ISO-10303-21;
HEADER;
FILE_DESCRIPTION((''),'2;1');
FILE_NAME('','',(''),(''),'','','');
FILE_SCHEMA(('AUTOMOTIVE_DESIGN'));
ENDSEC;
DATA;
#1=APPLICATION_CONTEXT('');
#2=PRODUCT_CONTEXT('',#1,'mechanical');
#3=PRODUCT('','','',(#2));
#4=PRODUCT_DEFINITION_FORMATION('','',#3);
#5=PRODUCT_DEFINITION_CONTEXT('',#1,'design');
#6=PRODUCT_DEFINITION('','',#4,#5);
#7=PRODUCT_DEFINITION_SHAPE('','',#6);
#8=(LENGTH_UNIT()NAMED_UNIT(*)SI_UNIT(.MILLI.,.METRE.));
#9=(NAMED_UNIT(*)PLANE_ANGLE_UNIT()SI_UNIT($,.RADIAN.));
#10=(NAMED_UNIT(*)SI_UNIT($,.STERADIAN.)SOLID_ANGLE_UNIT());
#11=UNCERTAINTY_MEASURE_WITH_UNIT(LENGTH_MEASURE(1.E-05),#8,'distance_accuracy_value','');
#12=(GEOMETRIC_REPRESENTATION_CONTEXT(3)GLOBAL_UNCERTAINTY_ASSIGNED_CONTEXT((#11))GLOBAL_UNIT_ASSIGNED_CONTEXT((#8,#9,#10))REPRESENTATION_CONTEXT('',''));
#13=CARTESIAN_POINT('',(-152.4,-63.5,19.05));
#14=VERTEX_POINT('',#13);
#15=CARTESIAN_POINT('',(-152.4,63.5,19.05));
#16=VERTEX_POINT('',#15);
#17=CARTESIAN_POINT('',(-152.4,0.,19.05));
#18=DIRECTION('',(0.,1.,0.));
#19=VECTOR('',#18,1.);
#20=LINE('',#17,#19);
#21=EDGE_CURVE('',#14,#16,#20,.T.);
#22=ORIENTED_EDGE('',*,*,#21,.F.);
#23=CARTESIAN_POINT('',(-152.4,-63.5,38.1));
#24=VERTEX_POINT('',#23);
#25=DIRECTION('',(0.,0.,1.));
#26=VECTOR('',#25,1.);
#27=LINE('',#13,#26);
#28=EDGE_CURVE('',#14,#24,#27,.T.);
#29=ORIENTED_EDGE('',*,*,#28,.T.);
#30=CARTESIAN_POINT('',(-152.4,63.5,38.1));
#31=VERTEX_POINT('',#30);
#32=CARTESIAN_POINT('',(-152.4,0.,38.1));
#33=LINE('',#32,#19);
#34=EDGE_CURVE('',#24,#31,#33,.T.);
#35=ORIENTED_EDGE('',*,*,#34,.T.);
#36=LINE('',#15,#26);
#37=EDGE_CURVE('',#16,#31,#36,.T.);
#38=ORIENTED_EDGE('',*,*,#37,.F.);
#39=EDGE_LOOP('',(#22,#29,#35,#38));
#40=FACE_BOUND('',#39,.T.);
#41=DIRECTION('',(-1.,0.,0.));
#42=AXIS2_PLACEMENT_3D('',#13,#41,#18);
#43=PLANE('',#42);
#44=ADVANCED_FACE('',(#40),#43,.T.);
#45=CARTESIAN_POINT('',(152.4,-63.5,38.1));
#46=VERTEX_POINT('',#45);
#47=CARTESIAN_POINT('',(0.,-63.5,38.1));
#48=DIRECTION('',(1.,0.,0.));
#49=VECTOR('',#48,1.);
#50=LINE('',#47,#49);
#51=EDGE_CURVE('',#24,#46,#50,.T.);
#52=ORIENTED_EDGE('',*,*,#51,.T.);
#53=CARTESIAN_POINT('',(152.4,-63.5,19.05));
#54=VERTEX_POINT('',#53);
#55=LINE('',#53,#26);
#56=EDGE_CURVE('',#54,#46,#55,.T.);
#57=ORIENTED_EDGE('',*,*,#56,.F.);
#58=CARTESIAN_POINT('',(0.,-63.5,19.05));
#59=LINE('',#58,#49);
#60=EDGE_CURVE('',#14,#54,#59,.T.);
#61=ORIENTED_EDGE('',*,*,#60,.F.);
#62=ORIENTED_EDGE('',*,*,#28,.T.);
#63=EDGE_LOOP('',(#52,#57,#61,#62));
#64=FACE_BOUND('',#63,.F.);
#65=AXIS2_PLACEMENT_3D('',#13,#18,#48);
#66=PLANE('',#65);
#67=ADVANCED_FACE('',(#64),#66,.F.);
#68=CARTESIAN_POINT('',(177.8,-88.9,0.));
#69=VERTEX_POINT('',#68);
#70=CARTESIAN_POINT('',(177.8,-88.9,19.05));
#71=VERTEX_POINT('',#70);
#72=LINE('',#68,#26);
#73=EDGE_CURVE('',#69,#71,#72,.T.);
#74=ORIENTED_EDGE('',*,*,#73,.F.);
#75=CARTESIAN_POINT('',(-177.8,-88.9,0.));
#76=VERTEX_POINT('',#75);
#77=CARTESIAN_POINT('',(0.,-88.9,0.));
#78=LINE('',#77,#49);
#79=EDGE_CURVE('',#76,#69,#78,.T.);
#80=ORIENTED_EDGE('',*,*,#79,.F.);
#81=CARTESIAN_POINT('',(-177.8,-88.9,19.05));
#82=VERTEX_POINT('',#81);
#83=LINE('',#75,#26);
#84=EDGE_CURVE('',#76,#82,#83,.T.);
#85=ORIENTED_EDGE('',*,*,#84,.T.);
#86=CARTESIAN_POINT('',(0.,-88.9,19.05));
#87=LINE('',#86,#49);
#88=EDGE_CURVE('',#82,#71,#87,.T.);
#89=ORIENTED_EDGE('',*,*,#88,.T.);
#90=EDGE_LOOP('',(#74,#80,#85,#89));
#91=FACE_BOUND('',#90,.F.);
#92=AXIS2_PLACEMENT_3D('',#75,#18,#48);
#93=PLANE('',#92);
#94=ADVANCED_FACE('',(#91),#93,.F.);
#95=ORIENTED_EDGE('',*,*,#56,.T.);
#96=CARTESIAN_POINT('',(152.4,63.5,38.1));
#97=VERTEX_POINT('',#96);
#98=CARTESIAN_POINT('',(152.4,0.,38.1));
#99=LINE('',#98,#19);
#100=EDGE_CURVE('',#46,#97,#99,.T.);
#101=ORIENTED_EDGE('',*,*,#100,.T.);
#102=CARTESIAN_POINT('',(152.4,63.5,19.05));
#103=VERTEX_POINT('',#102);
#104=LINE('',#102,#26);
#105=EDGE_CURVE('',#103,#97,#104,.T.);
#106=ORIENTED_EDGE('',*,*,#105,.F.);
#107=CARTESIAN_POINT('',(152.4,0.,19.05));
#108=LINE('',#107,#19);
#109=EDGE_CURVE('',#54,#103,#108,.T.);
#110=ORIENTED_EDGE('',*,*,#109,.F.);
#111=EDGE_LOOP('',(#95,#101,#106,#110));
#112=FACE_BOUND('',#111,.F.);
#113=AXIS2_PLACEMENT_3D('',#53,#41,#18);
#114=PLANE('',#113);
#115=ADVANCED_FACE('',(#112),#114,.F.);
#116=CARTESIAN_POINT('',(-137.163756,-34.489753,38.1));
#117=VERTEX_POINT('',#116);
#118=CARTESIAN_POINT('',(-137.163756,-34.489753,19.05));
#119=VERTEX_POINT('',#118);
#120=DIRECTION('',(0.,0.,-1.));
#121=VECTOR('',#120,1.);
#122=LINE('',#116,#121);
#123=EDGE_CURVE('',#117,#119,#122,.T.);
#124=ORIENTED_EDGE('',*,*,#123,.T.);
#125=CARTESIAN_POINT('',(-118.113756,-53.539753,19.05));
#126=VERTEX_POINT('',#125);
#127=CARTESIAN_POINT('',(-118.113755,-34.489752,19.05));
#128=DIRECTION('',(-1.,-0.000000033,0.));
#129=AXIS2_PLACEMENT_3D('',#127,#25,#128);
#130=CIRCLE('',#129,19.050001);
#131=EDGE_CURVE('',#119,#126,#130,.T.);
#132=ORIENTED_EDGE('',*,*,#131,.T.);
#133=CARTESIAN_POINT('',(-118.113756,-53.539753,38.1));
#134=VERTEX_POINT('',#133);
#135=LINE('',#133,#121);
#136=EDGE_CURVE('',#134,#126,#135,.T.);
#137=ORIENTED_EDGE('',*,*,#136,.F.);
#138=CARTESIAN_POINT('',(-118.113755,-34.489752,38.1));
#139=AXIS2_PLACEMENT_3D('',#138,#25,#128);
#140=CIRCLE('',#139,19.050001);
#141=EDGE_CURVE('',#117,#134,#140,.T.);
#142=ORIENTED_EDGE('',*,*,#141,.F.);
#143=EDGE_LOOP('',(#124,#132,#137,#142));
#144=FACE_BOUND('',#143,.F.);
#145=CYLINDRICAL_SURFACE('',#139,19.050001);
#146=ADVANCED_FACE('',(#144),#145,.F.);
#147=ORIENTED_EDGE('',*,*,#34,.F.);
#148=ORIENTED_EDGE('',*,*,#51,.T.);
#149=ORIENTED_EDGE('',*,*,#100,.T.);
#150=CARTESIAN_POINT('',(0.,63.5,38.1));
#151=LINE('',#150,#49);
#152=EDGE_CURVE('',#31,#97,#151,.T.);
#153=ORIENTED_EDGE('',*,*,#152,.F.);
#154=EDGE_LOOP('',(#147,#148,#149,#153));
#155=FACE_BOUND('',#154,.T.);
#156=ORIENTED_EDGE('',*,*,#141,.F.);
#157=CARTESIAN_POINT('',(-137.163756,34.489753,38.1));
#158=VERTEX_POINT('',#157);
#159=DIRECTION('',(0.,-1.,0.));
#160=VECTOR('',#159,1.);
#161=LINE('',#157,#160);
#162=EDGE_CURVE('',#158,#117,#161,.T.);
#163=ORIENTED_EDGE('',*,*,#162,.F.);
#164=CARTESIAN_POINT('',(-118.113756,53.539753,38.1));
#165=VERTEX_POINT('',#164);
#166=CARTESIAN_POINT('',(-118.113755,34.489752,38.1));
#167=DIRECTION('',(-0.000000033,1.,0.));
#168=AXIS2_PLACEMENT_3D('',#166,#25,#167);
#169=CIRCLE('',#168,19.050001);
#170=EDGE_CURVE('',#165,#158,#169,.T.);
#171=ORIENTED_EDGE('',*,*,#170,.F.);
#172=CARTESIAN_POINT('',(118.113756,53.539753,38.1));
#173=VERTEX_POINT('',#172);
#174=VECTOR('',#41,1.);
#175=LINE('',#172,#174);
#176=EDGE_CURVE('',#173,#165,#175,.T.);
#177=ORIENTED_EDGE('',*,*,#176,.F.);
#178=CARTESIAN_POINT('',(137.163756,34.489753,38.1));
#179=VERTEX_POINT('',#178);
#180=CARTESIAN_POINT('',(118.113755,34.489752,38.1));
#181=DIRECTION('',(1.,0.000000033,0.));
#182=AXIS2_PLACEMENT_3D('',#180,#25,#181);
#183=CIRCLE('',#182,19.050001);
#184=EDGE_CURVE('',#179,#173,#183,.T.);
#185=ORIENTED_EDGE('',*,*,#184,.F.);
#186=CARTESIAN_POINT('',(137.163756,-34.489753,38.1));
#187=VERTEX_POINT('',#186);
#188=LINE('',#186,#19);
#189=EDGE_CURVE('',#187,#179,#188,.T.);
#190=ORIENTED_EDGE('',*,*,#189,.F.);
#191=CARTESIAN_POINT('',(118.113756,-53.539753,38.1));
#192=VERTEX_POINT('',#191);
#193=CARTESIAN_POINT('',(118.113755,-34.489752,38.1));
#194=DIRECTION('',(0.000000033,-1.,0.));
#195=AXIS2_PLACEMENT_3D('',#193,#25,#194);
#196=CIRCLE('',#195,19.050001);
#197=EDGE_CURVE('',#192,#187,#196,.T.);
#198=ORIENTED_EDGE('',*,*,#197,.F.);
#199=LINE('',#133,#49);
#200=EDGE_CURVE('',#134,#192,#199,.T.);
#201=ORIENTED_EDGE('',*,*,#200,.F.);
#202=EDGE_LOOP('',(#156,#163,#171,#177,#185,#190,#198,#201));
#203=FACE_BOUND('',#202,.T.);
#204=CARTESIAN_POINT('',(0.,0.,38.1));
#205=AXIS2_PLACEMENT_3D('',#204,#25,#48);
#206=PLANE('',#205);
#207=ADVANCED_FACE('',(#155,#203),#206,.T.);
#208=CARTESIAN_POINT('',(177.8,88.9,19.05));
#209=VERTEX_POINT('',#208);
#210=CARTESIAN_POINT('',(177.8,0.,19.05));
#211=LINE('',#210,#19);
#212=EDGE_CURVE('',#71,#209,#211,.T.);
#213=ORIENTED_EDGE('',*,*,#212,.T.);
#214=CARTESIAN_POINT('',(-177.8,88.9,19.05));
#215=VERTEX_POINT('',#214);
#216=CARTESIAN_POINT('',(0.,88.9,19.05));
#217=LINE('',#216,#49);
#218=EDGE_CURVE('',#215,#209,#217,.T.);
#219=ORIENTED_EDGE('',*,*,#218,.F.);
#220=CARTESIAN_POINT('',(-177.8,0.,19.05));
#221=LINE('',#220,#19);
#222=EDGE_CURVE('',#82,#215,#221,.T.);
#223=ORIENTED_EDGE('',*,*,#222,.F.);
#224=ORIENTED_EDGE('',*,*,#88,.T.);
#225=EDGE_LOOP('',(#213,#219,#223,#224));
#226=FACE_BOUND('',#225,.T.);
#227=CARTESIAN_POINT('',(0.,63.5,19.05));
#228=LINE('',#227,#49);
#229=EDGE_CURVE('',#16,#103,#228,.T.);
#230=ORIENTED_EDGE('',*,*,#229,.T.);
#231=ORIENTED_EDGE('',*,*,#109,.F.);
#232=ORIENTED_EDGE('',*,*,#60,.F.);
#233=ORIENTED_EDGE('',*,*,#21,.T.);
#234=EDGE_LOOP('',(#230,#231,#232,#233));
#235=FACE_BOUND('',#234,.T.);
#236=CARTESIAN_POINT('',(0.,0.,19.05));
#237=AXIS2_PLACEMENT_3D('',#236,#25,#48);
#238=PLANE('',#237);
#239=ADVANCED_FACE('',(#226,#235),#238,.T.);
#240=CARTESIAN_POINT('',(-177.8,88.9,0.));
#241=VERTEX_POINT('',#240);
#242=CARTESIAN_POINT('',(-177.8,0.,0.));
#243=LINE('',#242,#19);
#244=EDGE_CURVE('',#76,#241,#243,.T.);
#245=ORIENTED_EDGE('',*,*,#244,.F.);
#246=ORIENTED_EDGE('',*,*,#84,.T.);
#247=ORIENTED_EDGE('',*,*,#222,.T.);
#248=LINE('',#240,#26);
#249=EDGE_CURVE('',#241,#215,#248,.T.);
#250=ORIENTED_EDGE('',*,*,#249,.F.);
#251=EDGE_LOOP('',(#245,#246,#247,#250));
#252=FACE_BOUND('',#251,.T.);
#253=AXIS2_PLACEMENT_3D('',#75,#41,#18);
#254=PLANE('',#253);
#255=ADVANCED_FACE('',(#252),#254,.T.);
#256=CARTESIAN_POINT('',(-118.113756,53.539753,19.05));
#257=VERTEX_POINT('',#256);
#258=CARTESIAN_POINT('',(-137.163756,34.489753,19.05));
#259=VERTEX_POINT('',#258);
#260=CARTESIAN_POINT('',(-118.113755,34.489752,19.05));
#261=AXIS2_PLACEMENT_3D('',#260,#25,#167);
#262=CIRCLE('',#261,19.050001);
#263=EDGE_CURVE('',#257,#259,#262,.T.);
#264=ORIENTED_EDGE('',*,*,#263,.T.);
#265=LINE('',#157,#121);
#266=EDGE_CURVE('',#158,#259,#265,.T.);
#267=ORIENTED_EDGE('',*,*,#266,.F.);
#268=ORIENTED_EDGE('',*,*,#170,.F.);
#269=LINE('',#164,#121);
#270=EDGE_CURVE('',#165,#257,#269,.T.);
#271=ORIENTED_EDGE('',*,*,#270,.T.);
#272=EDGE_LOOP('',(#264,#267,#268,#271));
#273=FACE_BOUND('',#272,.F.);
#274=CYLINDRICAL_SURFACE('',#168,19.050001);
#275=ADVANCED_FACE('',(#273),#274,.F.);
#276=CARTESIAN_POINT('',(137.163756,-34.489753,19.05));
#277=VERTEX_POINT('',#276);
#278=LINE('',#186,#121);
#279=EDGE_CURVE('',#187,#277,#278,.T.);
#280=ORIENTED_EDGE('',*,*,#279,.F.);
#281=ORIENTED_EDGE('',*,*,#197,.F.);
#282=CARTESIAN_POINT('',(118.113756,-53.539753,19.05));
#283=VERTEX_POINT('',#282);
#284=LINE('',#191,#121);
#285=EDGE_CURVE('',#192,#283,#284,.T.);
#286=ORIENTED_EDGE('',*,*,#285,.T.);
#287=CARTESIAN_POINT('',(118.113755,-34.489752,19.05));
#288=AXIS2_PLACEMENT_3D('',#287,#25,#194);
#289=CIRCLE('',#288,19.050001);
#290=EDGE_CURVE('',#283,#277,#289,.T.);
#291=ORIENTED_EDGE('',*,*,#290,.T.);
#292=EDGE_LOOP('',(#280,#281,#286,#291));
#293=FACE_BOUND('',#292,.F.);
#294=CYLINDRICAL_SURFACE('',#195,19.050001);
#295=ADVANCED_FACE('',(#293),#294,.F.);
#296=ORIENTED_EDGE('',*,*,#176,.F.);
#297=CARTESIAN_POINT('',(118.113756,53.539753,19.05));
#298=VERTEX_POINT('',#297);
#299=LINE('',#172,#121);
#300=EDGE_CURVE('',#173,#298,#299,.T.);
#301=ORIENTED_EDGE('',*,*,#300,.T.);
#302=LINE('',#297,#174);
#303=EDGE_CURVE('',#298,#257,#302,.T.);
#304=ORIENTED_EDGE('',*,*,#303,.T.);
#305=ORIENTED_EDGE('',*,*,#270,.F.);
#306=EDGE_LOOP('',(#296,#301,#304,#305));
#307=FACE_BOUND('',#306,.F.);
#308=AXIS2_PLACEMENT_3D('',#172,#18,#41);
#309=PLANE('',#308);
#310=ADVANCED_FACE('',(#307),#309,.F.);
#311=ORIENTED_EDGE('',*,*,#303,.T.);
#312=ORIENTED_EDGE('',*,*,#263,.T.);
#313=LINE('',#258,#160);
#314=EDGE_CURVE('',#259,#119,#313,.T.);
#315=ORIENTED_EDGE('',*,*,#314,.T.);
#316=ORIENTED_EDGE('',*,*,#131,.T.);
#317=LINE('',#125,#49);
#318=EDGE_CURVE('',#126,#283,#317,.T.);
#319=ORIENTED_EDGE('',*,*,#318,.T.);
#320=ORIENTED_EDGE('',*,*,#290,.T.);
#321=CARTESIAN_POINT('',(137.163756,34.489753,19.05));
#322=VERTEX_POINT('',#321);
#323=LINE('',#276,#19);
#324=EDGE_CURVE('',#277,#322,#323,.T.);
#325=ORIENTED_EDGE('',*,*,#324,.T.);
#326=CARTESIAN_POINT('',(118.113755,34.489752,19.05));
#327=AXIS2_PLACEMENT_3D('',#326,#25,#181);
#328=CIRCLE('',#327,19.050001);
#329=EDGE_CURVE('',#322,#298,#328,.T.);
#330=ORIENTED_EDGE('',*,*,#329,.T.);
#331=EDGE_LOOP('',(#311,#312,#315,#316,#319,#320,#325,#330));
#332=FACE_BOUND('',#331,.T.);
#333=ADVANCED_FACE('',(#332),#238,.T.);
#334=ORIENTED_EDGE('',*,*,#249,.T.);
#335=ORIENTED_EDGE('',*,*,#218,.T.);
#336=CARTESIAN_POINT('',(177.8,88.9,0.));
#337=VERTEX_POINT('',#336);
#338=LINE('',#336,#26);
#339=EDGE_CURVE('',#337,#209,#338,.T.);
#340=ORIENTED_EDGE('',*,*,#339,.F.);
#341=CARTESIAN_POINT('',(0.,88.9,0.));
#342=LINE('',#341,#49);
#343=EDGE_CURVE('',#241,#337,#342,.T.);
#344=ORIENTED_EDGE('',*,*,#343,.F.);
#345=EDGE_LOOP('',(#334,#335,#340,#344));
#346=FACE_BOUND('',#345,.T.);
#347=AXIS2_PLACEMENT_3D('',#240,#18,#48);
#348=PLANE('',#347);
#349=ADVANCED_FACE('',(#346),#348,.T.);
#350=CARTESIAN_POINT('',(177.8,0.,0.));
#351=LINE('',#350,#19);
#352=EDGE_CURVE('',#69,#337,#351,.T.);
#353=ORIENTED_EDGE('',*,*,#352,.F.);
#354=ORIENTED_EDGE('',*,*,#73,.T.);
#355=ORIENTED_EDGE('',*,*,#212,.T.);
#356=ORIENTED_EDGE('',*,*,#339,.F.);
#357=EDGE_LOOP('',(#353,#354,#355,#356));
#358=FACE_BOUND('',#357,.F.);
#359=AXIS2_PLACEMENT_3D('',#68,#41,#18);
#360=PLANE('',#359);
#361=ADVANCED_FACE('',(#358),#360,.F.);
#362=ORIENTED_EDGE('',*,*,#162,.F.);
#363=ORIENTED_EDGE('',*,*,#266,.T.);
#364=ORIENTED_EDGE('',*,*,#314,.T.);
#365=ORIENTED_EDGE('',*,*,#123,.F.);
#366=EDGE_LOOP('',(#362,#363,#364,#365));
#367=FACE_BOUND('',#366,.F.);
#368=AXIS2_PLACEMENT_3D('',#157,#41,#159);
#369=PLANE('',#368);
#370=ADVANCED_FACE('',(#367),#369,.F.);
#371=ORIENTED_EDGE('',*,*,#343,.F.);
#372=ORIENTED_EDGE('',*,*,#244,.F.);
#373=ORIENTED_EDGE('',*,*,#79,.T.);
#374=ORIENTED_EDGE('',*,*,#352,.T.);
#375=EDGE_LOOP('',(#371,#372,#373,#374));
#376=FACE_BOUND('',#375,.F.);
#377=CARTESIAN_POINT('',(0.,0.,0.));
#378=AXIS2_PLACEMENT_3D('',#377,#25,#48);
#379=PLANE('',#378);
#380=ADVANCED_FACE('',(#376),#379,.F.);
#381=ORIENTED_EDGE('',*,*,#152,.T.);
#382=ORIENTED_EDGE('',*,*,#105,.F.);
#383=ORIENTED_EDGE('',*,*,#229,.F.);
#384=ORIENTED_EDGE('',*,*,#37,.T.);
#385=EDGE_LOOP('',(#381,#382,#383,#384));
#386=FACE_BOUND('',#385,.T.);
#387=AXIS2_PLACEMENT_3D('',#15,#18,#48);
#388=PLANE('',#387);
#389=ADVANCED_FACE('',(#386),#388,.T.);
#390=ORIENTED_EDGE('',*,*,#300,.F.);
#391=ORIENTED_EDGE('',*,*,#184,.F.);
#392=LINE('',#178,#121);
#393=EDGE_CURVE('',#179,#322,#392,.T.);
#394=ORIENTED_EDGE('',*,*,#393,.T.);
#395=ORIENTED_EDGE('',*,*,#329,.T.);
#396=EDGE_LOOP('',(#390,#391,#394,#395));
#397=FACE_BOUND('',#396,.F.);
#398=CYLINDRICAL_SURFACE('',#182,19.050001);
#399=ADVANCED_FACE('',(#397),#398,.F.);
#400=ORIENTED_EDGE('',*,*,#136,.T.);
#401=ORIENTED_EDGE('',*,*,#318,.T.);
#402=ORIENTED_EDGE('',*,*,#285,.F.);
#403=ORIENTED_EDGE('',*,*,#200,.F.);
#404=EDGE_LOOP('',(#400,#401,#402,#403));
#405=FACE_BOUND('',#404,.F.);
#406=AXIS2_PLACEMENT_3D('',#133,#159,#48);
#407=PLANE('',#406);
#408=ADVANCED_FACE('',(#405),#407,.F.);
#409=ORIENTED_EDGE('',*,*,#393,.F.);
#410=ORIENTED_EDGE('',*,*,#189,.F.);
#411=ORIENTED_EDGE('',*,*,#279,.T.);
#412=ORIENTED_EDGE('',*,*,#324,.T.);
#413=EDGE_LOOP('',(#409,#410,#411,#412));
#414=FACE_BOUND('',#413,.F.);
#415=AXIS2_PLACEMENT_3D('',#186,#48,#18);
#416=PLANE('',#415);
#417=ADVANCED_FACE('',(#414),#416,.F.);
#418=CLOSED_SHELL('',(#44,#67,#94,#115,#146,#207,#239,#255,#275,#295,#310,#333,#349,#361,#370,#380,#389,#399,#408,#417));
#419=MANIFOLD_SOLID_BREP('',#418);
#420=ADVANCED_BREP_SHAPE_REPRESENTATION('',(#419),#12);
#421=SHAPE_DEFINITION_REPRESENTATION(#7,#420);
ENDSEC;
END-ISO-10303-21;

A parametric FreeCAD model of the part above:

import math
import FreeCAD as App
import Part
import Sketcher

V = App.Vector
Q = App.Units.Quantity

doc = App.newDocument("Part")
body = doc.addObject("PartDesign::Body", "Body")

# Sketch on XY plane
sketch1 = body.newObject("Sketcher::SketchObject", "Sketch")
sketch1.AttachmentSupport = (doc.getObject("XY_Plane"), [""])
sketch1.MapMode = "FlatFace"
sketch1.addGeometry(Part.LineSegment(V(-178, 89, 0), V(-178, -89, 0)), False)
sketch1.addGeometry(Part.LineSegment(V(-178, -89, 0), V(178, -89, 0)), False)
sketch1.addGeometry(Part.LineSegment(V(178, -89, 0), V(178, 89, 0)), False)
sketch1.addGeometry(Part.LineSegment(V(178, 89, 0), V(-178, 89, 0)), False)
sketch1.addConstraint(Sketcher.Constraint("Coincident", 0, 2, 1, 1))
sketch1.addConstraint(Sketcher.Constraint("Coincident", 1, 2, 2, 1))
sketch1.addConstraint(Sketcher.Constraint("Coincident", 2, 2, 3, 1))
sketch1.addConstraint(Sketcher.Constraint("Coincident", 3, 2, 0, 1))
sketch1.addConstraint(Sketcher.Constraint("Vertical", 0))
sketch1.addConstraint(Sketcher.Constraint("Horizontal", 1))
sketch1.addConstraint(Sketcher.Constraint("Vertical", 2))
sketch1.addConstraint(Sketcher.Constraint("Horizontal", 3))
sketch1.addConstraint(Sketcher.Constraint("Symmetric", 0, 2, 2, 2, -1, 1))
sketch1.addConstraint(Sketcher.Constraint("DistanceX", 1, 1, 1, 2, Q("14 in")))
sketch1.addConstraint(Sketcher.Constraint("DistanceY", 0, 2, 0, 1, Q("7 in")))
pad1 = body.newObject("PartDesign::Pad", "Pad")
pad1.Profile = sketch1
pad1.Length = Q("0.75 in")

# Sketch on XY plane
sketch2 = body.newObject("Sketcher::SketchObject", "Sketch001")
sketch2.AttachmentSupport = (doc.getObject("XY_Plane"), [""])
sketch2.MapMode = "FlatFace"
sketch2.AttachmentOffset = App.Placement(V(0, 0, 0.75 * 25.4), App.Rotation())
sketch2.addGeometry(Part.LineSegment(V(-152, 64, 0), V(-152, -64, 0)), False)
sketch2.addGeometry(Part.LineSegment(V(-152, -64, 0), V(152, -64, 0)), False)
sketch2.addGeometry(Part.LineSegment(V(152, -64, 0), V(152, 64, 0)), False)
sketch2.addGeometry(Part.LineSegment(V(152, 64, 0), V(-152, 64, 0)), False)
sketch2.addConstraint(Sketcher.Constraint("Coincident", 0, 2, 1, 1))
sketch2.addConstraint(Sketcher.Constraint("Coincident", 1, 2, 2, 1))
sketch2.addConstraint(Sketcher.Constraint("Coincident", 2, 2, 3, 1))
sketch2.addConstraint(Sketcher.Constraint("Coincident", 3, 2, 0, 1))
sketch2.addConstraint(Sketcher.Constraint("Vertical", 0))
sketch2.addConstraint(Sketcher.Constraint("Horizontal", 1))
sketch2.addConstraint(Sketcher.Constraint("Vertical", 2))
sketch2.addConstraint(Sketcher.Constraint("Horizontal", 3))
sketch2.addConstraint(Sketcher.Constraint("Symmetric", 0, 2, 2, 2, -1, 1))
sketch2.addConstraint(Sketcher.Constraint("DistanceX", 1, 1, 1, 2, Q("12 in")))
sketch2.addConstraint(Sketcher.Constraint("DistanceY", 0, 2, 0, 1, Q("5 in")))
pad2 = body.newObject("PartDesign::Pad", "Pad001")
pad2.Profile = sketch2
pad2.Length = Q("0.75 in")

# Sketch on XY plane
sketch3 = body.newObject("Sketcher::SketchObject", "Sketch002")
sketch3.AttachmentSupport = (doc.getObject("XY_Plane"), [""])
sketch3.MapMode = "FlatFace"
sketch3.AttachmentOffset = App.Placement(V(0, 0, 1.5 * 25.4), App.Rotation())
sketch3.addGeometry(Part.ArcOfCircle(Part.Circle(V(-118, -34, 0), V(0, 0, 1), 19), math.radians(-180), math.radians(-90)), False)
sketch3.addGeometry(Part.LineSegment(V(-118, -54, 0), V(118, -54, 0)), False)
sketch3.addGeometry(Part.ArcOfCircle(Part.Circle(V(118, -34, 0), V(0, 0, 1), 19), math.radians(-90), math.radians(0)), False)
sketch3.addGeometry(Part.LineSegment(V(137, -34, 0), V(137, 34, 0)), False)
sketch3.addGeometry(Part.ArcOfCircle(Part.Circle(V(118, 34, 0), V(0, 0, 1), 19), math.radians(0), math.radians(90)), False)
sketch3.addGeometry(Part.LineSegment(V(118, 54, 0), V(-118, 54, 0)), False)
sketch3.addGeometry(Part.ArcOfCircle(Part.Circle(V(-118, 34, 0), V(0, 0, 1), 19), math.radians(90), math.radians(180)), False)
sketch3.addGeometry(Part.LineSegment(V(-137, 34, 0), V(-137, -34, 0)), False)
sketch3.addConstraint(Sketcher.Constraint("Tangent", 0, 2, 1, 1))
sketch3.addConstraint(Sketcher.Constraint("Tangent", 1, 2, 2, 1))
sketch3.addConstraint(Sketcher.Constraint("Tangent", 2, 2, 3, 1))
sketch3.addConstraint(Sketcher.Constraint("Tangent", 3, 2, 4, 1))
sketch3.addConstraint(Sketcher.Constraint("Tangent", 4, 2, 5, 1))
sketch3.addConstraint(Sketcher.Constraint("Tangent", 5, 2, 6, 1))
sketch3.addConstraint(Sketcher.Constraint("Tangent", 6, 2, 7, 1))
sketch3.addConstraint(Sketcher.Constraint("Tangent", 7, 2, 0, 1))
sketch3.addConstraint(Sketcher.Constraint("Horizontal", 1))
sketch3.addConstraint(Sketcher.Constraint("Vertical", 3))
sketch3.addConstraint(Sketcher.Constraint("Horizontal", 5))
sketch3.addConstraint(Sketcher.Constraint("Vertical", 7))
sketch3.addConstraint(Sketcher.Constraint("Equal", 0, 2))
sketch3.addConstraint(Sketcher.Constraint("Equal", 2, 4))
sketch3.addConstraint(Sketcher.Constraint("Equal", 4, 6))
sketch3.addConstraint(Sketcher.Constraint("Symmetric", 0, 3, 4, 3, -1, 1))
sketch3.addConstraint(Sketcher.Constraint("Radius", 0, Q("0.75 in")))
sketch3.addConstraint(Sketcher.Constraint("DistanceX", 1, 1, 1, 2, Q("236.227512 mm")))
sketch3.addConstraint(Sketcher.Constraint("DistanceY", 3, 1, 3, 2, Q("68.979506 mm")))
pocket1 = body.newObject("PartDesign::Pocket", "Pocket")
pocket1.Profile = sketch3
pocket1.Length = Q("0.75 in")

doc.recompute()
